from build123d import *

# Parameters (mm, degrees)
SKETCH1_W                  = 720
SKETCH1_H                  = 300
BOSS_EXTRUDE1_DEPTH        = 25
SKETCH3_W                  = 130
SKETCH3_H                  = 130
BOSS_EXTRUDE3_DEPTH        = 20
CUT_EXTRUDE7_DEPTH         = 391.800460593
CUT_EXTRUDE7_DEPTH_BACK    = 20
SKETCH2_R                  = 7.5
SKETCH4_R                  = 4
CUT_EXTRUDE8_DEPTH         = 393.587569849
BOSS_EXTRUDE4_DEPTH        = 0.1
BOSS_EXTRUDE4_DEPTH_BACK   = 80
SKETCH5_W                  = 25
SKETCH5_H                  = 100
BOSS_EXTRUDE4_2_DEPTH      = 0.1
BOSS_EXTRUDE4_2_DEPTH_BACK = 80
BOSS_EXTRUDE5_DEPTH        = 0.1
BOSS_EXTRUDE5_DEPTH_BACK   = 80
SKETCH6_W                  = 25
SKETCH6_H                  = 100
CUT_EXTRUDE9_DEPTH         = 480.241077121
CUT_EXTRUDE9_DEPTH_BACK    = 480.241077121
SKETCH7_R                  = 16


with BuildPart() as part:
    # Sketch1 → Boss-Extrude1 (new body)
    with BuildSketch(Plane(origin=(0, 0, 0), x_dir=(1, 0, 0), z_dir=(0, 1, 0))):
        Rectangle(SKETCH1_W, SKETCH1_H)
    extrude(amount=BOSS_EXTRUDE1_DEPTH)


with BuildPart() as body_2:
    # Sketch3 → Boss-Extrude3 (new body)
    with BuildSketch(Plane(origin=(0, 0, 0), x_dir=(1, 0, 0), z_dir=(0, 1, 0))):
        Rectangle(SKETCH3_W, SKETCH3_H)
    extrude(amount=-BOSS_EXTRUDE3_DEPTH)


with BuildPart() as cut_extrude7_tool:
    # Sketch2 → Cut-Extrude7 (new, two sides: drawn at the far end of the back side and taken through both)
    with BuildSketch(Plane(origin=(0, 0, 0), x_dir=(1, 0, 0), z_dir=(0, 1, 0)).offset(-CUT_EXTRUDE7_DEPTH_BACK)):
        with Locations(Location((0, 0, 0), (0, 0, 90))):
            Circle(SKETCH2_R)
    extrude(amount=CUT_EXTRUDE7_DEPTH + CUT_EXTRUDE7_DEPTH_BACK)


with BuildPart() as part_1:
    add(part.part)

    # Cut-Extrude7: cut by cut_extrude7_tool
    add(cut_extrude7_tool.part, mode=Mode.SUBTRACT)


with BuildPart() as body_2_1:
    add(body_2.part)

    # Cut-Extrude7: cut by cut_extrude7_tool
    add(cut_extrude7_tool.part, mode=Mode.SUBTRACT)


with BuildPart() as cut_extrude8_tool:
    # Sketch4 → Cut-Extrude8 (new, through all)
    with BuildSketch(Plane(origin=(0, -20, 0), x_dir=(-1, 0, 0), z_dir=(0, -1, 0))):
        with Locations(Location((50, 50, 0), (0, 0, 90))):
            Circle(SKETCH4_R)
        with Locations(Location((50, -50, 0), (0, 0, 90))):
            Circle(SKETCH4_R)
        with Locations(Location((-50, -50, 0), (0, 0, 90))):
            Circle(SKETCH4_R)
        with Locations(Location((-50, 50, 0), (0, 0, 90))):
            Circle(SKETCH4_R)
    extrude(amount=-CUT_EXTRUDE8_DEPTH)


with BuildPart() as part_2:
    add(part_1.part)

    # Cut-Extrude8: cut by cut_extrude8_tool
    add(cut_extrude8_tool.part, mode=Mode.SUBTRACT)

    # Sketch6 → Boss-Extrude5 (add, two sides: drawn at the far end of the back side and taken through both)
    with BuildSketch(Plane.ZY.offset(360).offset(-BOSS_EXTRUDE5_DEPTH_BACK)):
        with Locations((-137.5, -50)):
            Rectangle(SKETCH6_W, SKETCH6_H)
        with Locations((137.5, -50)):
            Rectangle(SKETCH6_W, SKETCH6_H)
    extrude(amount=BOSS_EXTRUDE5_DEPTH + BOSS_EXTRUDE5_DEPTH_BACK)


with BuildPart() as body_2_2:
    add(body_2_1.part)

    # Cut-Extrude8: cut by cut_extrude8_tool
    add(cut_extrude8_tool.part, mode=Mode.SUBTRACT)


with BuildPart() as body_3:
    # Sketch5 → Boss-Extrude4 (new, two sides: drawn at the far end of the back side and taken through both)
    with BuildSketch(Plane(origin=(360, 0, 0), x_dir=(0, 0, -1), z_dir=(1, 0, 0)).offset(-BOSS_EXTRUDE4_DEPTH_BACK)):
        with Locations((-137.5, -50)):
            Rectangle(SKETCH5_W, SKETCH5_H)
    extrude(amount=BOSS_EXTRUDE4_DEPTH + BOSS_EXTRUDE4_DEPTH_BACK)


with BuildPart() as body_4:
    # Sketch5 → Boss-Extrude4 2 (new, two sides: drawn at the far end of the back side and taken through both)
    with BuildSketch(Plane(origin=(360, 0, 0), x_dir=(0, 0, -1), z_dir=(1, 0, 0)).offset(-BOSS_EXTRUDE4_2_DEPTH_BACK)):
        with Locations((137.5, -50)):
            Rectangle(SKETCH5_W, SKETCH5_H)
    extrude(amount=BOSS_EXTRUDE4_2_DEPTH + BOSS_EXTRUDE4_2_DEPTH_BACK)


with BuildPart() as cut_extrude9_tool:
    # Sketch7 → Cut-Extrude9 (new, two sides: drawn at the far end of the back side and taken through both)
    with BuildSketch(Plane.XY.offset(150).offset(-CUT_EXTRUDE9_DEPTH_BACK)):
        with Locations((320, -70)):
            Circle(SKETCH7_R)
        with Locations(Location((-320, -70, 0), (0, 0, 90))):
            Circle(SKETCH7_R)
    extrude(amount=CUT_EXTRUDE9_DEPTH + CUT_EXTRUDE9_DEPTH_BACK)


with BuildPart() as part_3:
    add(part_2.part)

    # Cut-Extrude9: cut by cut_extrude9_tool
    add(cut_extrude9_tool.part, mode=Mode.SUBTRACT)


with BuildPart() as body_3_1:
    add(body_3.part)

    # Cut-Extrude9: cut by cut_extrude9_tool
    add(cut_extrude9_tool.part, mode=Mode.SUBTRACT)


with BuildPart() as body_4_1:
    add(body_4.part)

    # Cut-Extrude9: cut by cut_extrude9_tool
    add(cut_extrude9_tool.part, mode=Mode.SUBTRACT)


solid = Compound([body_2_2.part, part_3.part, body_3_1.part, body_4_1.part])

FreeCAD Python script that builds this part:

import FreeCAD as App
import Part
import Sketcher

doc = App.newDocument("Part")
params = doc.addObject("Spreadsheet::Sheet", "Params")
for row, (alias, value) in enumerate([
    ("sketch1_width", "720 mm"),
    ("sketch1_height", "300 mm"),
    ("pad1_length", "25 mm"),
    ("sketch2_width", "130 mm"),
    ("pad2_length", "20 mm"),
    ("sketch3_diameter", "15 mm"),
    ("pad3_length", "391.800461 mm"),
    ("pad3_length2", "20 mm"),
    ("sketch4_diameter", "8 mm"),
    ("pad4_length", "393.58757 mm"),
    ("sketch5_width", "100 mm"),
    ("sketch5_height", "25 mm"),
    ("pad5_length", "0.1 mm"),
    ("pad5_length2", "80 mm"),
    ("sketch6_width", "100 mm"),
    ("sketch6_height", "25 mm"),
    ("pad6_length", "0.1 mm"),
    ("pad6_length2", "80 mm"),
    ("sketch7_width", "100 mm"),
    ("sketch7_height", "25 mm"),
    ("pad7_length", "0.1 mm"),
    ("pad7_length2", "80 mm"),
    ("sketch8_diameter", "32 mm"),
    ("pad8_length", "480.241077 mm"),
    ("pad8_length2", "480.241077 mm"),
], start=1):
    params.set(f"A{row}", alias)
    params.set(f"B{row}", "=" + value)
    params.setAlias(f"B{row}", alias)

body = doc.addObject("PartDesign::Body", "Body")

# Sketch on XZ plane
sketch1 = body.newObject("Sketcher::SketchObject", "Sketch")
sketch1.AttachmentSupport = (doc.getObject("XZ_Plane"), [""])
sketch1.MapMode = "FlatFace"
sketch1.addGeometry([
    Part.LineSegment(App.Vector(-360, -150, 0), App.Vector(-360, 150, 0)),
    Part.LineSegment(App.Vector(-360, 150, 0), App.Vector(360, 150, 0)),
    Part.LineSegment(App.Vector(360, 150, 0), App.Vector(360, -150, 0)),
    Part.LineSegment(App.Vector(360, -150, 0), App.Vector(-360, -150, 0)),
], False)
sketch1.addConstraint([
    Sketcher.Constraint("Coincident", 0, 2, 1, 1),
    Sketcher.Constraint("Coincident", 1, 2, 2, 1),
    Sketcher.Constraint("Coincident", 2, 2, 3, 1),
    Sketcher.Constraint("Coincident", 3, 2, 0, 1),
    Sketcher.Constraint("Vertical", 0),
    Sketcher.Constraint("Horizontal", 1),
    Sketcher.Constraint("Vertical", 2),
    Sketcher.Constraint("Horizontal", 3),
    Sketcher.Constraint("Symmetric", 0, 2, 2, 2, -1, 1),
    Sketcher.Constraint("DistanceX", 1, 1, 1, 2, 720.0),
    Sketcher.Constraint("DistanceY", 0, 1, 0, 2, 300.0),
])
sketch1.setExpression("Constraints[9]", "Params.sketch1_width")
sketch1.setExpression("Constraints[10]", "Params.sketch1_height")
pad1 = body.newObject("PartDesign::Pad", "Pad")
pad1.Profile = sketch1
pad1.setExpression("Length", "Params.pad1_length")
pad1.Reversed = True
body2 = doc.addObject("PartDesign::Body", "Body001")

# Sketch on XZ plane
sketch2 = body2.newObject("Sketcher::SketchObject", "Sketch001")
sketch2.AttachmentSupport = (doc.getObject("XZ_Plane001"), [""])
sketch2.MapMode = "FlatFace"
sketch2.addGeometry([
    Part.LineSegment(App.Vector(-65, -65, 0), App.Vector(-65, 65, 0)),
    Part.LineSegment(App.Vector(-65, 65, 0), App.Vector(65, 65, 0)),
    Part.LineSegment(App.Vector(65, 65, 0), App.Vector(65, -65, 0)),
    Part.LineSegment(App.Vector(65, -65, 0), App.Vector(-65, -65, 0)),
], False)
sketch2.addConstraint([
    Sketcher.Constraint("Coincident", 0, 2, 1, 1),
    Sketcher.Constraint("Coincident", 1, 2, 2, 1),
    Sketcher.Constraint("Coincident", 2, 2, 3, 1),
    Sketcher.Constraint("Coincident", 3, 2, 0, 1),
    Sketcher.Constraint("Vertical", 0),
    Sketcher.Constraint("Horizontal", 1),
    Sketcher.Constraint("Vertical", 2),
    Sketcher.Constraint("Horizontal", 3),
    Sketcher.Constraint("Symmetric", 0, 2, 2, 2, -1, 1),
    Sketcher.Constraint("Equal", 3, 0),
    Sketcher.Constraint("DistanceX", 1, 1, 1, 2, 130.0),
])
sketch2.setExpression("Constraints[10]", "Params.sketch2_width")
pad2 = body2.newObject("PartDesign::Pad", "Pad001")
pad2.Profile = sketch2
pad2.setExpression("Length", "Params.pad2_length")
body3 = doc.addObject("PartDesign::Body", "Body002")

# Sketch on XZ plane
sketch3 = body3.newObject("Sketcher::SketchObject", "Sketch002")
sketch3.AttachmentSupport = (doc.getObject("XZ_Plane002"), [""])
sketch3.MapMode = "FlatFace"
sketch3.addGeometry(Part.Circle(App.Vector(0, 0, 0), App.Vector(0, 0, 1), 7.5), False)
sketch3.addConstraint([
    Sketcher.Constraint("Coincident", 0, 3, -1, 1),
    Sketcher.Constraint("Diameter", 0, 15.0),
])
sketch3.setExpression("Constraints[1]", "Params.sketch3_diameter")
pad3 = body3.newObject("PartDesign::Pad", "Pad002")
pad3.Profile = sketch3
pad3.Type = "TwoLengths"
pad3.setExpression("Length", "Params.pad3_length")
pad3.setExpression("Length2", "Params.pad3_length2")
pad3.Reversed = True
doc.recompute()

body4 = doc.addObject("PartDesign::Body", "Body003")
body4.BaseFeature = body3
boolean = body.newObject("PartDesign::Boolean", "Boolean")
boolean.Type = "Cut"
boolean.addObjects([body4])
doc.recompute()

boolean2 = body2.newObject("PartDesign::Boolean", "Boolean001")
boolean2.Type = "Cut"
boolean2.addObjects([body3])
body5 = doc.addObject("PartDesign::Body", "Body004")
body5.AllowCompound = True

# Sketch on XZ plane
sketch4 = body5.newObject("Sketcher::SketchObject", "Sketch003")
sketch4.AttachmentSupport = (doc.getObject("XZ_Plane004"), [""])
sketch4.MapMode = "FlatFace"
sketch4.AttachmentOffset = App.Placement(App.Vector(0, 0, 20), App.Rotation())
sketch4.addGeometry([
    Part.Circle(App.Vector(-50, -50, 0), App.Vector(0, 0, 1), 4),
    Part.Circle(App.Vector(-50, 50, 0), App.Vector(0, 0, 1), 4),
    Part.Circle(App.Vector(50, 50, 0), App.Vector(0, 0, 1), 4),
    Part.Circle(App.Vector(50, -50, 0), App.Vector(0, 0, 1), 4),
], False)
sketch4.addConstraint([
    Sketcher.Constraint("Equal", 0, 1),
    Sketcher.Constraint("Equal", 1, 2),
    Sketcher.Constraint("Equal", 2, 3),
    Sketcher.Constraint("Symmetric", 0, 3, 2, 3, -1, 1),
    Sketcher.Constraint("Symmetric", 1, 3, 3, 3, -1, 1),
    Sketcher.Constraint("Symmetric", 1, 3, 2, 3, -2),
    Sketcher.Constraint("Diameter", 0, 8.0),
    Sketcher.Constraint("DistanceX", 0, 3, -1, 1, 50.0),
    Sketcher.Constraint("DistanceY", 0, 3, -1, 1, 50.0),
])
sketch4.setExpression("Constraints[6]", "Params.sketch4_diameter")
pad4 = body5.newObject("PartDesign::Pad", "Pad003")
pad4.Profile = sketch4
pad4.setExpression("Length", "Params.pad4_length")
pad4.Reversed = True
doc.recompute()

body6 = doc.addObject("PartDesign::Body", "Body005")
body6.BaseFeature = body5
boolean3 = body.newObject("PartDesign::Boolean", "Boolean002")
boolean3.Type = "Cut"
boolean3.addObjects([body6])
doc.recompute()

# Sketch on YZ plane
sketch5 = body.newObject("Sketcher::SketchObject", "Sketch004")
sketch5.AttachmentSupport = (doc.getObject("YZ_Plane"), [""])
sketch5.MapMode = "FlatFace"
sketch5.AttachmentOffset = App.Placement(App.Vector(0, 0, -360), App.Rotation())
sketch5.addGeometry([
    Part.LineSegment(App.Vector(0, -150, 0), App.Vector(-100, -150, 0)),  # 0
    Part.LineSegment(App.Vector(-100, -150, 0), App.Vector(-100, -125, 0)),  # 1
    Part.LineSegment(App.Vector(-100, -125, 0), App.Vector(0, -125, 0)),  # 2
    Part.LineSegment(App.Vector(0, -125, 0), App.Vector(0, -150, 0)),  # 3
    Part.LineSegment(App.Vector(0, 125, 0), App.Vector(-100, 125, 0)),  # 4
    Part.LineSegment(App.Vector(-100, 125, 0), App.Vector(-100, 150, 0)),  # 5
    Part.LineSegment(App.Vector(-100, 150, 0), App.Vector(0, 150, 0)),  # 6
    Part.LineSegment(App.Vector(0, 150, 0), App.Vector(0, 125, 0)),  # 7
], False)
sketch5.addConstraint([
    Sketcher.Constraint("Coincident", 0, 2, 1, 1),
    Sketcher.Constraint("Coincident", 1, 2, 2, 1),
    Sketcher.Constraint("Coincident", 2, 2, 3, 1),
    Sketcher.Constraint("Coincident", 3, 2, 0, 1),
    Sketcher.Constraint("Coincident", 4, 2, 5, 1),
    Sketcher.Constraint("Coincident", 5, 2, 6, 1),
    Sketcher.Constraint("Coincident", 6, 2, 7, 1),
    Sketcher.Constraint("Coincident", 7, 2, 4, 1),
    Sketcher.Constraint("Horizontal", 0),
    Sketcher.Constraint("Vertical", 1),
    Sketcher.Constraint("Horizontal", 2),
    Sketcher.Constraint("Vertical", 3),
    Sketcher.Constraint("Horizontal", 4),
    Sketcher.Constraint("Vertical", 5),
    Sketcher.Constraint("Horizontal", 6),
    Sketcher.Constraint("Vertical", 7),
    Sketcher.Constraint("Symmetric", 3, 2, 6, 2, -1, 1),
    Sketcher.Constraint("Symmetric", 1, 2, 4, 2, -1),
    Sketcher.Constraint("PointOnObject", 2, 2, -2),
    Sketcher.Constraint("DistanceX", 0, 2, 0, 1, 100.0),
    Sketcher.Constraint("DistanceY", 1, 1, 1, 2, 25.0),
    Sketcher.Constraint("DistanceY", 0, 2, -1, 1, 150.0),
])
sketch5.setExpression("Constraints[19]", "Params.sketch5_width")
sketch5.setExpression("Constraints[20]", "Params.sketch5_height")
pad5 = body.newObject("PartDesign::Pad", "Pad004")
pad5.Profile = sketch5
pad5.Type = "TwoLengths"
pad5.setExpression("Length", "Params.pad5_length")
pad5.setExpression("Length2", "Params.pad5_length2")
pad5.Reversed = True
doc.recompute()

boolean4 = body2.newObject("PartDesign::Boolean", "Boolean003")
boolean4.Type = "Cut"
boolean4.addObjects([body5])
body7 = doc.addObject("PartDesign::Body", "Body006")

# Sketch on YZ plane
sketch6 = body7.newObject("Sketcher::SketchObject", "Sketch005")
sketch6.AttachmentSupport = (doc.getObject("YZ_Plane006"), [""])
sketch6.MapMode = "FlatFace"
sketch6.AttachmentOffset = App.Placement(App.Vector(0, 0, 360), App.Rotation())
sketch6.addGeometry([
    Part.LineSegment(App.Vector(0, 150, 0), App.Vector(-100, 150, 0)),
    Part.LineSegment(App.Vector(-100, 150, 0), App.Vector(-100, 125, 0)),
    Part.LineSegment(App.Vector(-100, 125, 0), App.Vector(0, 125, 0)),
    Part.LineSegment(App.Vector(0, 125, 0), App.Vector(0, 150, 0)),
], False)
sketch6.addConstraint([
    Sketcher.Constraint("Coincident", 0, 2, 1, 1),
    Sketcher.Constraint("Coincident", 1, 2, 2, 1),
    Sketcher.Constraint("Coincident", 2, 2, 3, 1),
    Sketcher.Constraint("Coincident", 3, 2, 0, 1),
    Sketcher.Constraint("Horizontal", 0),
    Sketcher.Constraint("Vertical", 1),
    Sketcher.Constraint("Horizontal", 2),
    Sketcher.Constraint("Vertical", 3),
    Sketcher.Constraint("PointOnObject", 2, 2, -2),
    Sketcher.Constraint("DistanceX", 0, 2, 0, 1, 100.0),
    Sketcher.Constraint("DistanceY", 1, 2, 1, 1, 25.0),
    Sketcher.Constraint("DistanceY", -1, 1, 0, 2, 150.0),
])
sketch6.setExpression("Constraints[9]", "Params.sketch6_width")
sketch6.setExpression("Constraints[10]", "Params.sketch6_height")
pad6 = body7.newObject("PartDesign::Pad", "Pad005")
pad6.Profile = sketch6
pad6.Type = "TwoLengths"
pad6.setExpression("Length", "Params.pad6_length")
pad6.setExpression("Length2", "Params.pad6_length2")
body8 = doc.addObject("PartDesign::Body", "Body007")

# Sketch on YZ plane
sketch7 = body8.newObject("Sketcher::SketchObject", "Sketch006")
sketch7.AttachmentSupport = (doc.getObject("YZ_Plane007"), [""])
sketch7.MapMode = "FlatFace"
sketch7.AttachmentOffset = App.Placement(App.Vector(0, 0, 360), App.Rotation())
sketch7.addGeometry([
    Part.LineSegment(App.Vector(0, -125, 0), App.Vector(-100, -125, 0)),
    Part.LineSegment(App.Vector(-100, -125, 0), App.Vector(-100, -150, 0)),
    Part.LineSegment(App.Vector(-100, -150, 0), App.Vector(0, -150, 0)),
    Part.LineSegment(App.Vector(0, -150, 0), App.Vector(0, -125, 0)),
], False)
sketch7.addConstraint([
    Sketcher.Constraint("Coincident", 0, 2, 1, 1),
    Sketcher.Constraint("Coincident", 1, 2, 2, 1),
    Sketcher.Constraint("Coincident", 2, 2, 3, 1),
    Sketcher.Constraint("Coincident", 3, 2, 0, 1),
    Sketcher.Constraint("Horizontal", 0),
    Sketcher.Constraint("Vertical", 1),
    Sketcher.Constraint("Horizontal", 2),
    Sketcher.Constraint("Vertical", 3),
    Sketcher.Constraint("PointOnObject", 2, 2, -2),
    Sketcher.Constraint("DistanceX", 0, 2, 0, 1, 100.0),
    Sketcher.Constraint("DistanceY", 1, 2, 1, 1, 25.0),
    Sketcher.Constraint("DistanceY", 0, 2, -1, 1, 125.0),
])
sketch7.setExpression("Constraints[9]", "Params.sketch7_width")
sketch7.setExpression("Constraints[10]", "Params.sketch7_height")
pad7 = body8.newObject("PartDesign::Pad", "Pad006")
pad7.Profile = sketch7
pad7.Type = "TwoLengths"
pad7.setExpression("Length", "Params.pad7_length")
pad7.setExpression("Length2", "Params.pad7_length2")
body9 = doc.addObject("PartDesign::Body", "Body008")
body9.AllowCompound = True

# Sketch on XY plane
sketch8 = body9.newObject("Sketcher::SketchObject", "Sketch007")
sketch8.AttachmentSupport = (doc.getObject("XY_Plane008"), [""])
sketch8.MapMode = "FlatFace"
sketch8.AttachmentOffset = App.Placement(App.Vector(0, 0, 150), App.Rotation())
sketch8.addGeometry([
    Part.Circle(App.Vector(320, -70, 0), App.Vector(0, 0, 1), 16),
    Part.Circle(App.Vector(-320, -70, 0), App.Vector(0, 0, 1), 16),
], False)
sketch8.addConstraint([
    Sketcher.Constraint("Equal", 0, 1),
    Sketcher.Constraint("Symmetric", 0, 3, 1, 3, -2),
    Sketcher.Constraint("Diameter", 0, 32.0),
    Sketcher.Constraint("DistanceX", -1, 1, 0, 3, 320.0),
    Sketcher.Constraint("DistanceY", 0, 3, -1, 1, 70.0),
])
sketch8.setExpression("Constraints[2]", "Params.sketch8_diameter")
pad8 = body9.newObject("PartDesign::Pad", "Pad007")
pad8.Profile = sketch8
pad8.Type = "TwoLengths"
pad8.setExpression("Length", "Params.pad8_length")
pad8.setExpression("Length2", "Params.pad8_length2")
doc.recompute()

body10 = doc.addObject("PartDesign::Body", "Body009")
body10.BaseFeature = body9
boolean5 = body.newObject("PartDesign::Boolean", "Boolean004")
boolean5.Type = "Cut"
boolean5.addObjects([body10])
doc.recompute()

body11 = doc.addObject("PartDesign::Body", "Body010")
body11.BaseFeature = body9
boolean6 = body7.newObject("PartDesign::Boolean", "Boolean005")
boolean6.Type = "Cut"
boolean6.addObjects([body11])
doc.recompute()

boolean7 = body8.newObject("PartDesign::Boolean", "Boolean006")
boolean7.Type = "Cut"
boolean7.addObjects([body9])

doc.recompute()
